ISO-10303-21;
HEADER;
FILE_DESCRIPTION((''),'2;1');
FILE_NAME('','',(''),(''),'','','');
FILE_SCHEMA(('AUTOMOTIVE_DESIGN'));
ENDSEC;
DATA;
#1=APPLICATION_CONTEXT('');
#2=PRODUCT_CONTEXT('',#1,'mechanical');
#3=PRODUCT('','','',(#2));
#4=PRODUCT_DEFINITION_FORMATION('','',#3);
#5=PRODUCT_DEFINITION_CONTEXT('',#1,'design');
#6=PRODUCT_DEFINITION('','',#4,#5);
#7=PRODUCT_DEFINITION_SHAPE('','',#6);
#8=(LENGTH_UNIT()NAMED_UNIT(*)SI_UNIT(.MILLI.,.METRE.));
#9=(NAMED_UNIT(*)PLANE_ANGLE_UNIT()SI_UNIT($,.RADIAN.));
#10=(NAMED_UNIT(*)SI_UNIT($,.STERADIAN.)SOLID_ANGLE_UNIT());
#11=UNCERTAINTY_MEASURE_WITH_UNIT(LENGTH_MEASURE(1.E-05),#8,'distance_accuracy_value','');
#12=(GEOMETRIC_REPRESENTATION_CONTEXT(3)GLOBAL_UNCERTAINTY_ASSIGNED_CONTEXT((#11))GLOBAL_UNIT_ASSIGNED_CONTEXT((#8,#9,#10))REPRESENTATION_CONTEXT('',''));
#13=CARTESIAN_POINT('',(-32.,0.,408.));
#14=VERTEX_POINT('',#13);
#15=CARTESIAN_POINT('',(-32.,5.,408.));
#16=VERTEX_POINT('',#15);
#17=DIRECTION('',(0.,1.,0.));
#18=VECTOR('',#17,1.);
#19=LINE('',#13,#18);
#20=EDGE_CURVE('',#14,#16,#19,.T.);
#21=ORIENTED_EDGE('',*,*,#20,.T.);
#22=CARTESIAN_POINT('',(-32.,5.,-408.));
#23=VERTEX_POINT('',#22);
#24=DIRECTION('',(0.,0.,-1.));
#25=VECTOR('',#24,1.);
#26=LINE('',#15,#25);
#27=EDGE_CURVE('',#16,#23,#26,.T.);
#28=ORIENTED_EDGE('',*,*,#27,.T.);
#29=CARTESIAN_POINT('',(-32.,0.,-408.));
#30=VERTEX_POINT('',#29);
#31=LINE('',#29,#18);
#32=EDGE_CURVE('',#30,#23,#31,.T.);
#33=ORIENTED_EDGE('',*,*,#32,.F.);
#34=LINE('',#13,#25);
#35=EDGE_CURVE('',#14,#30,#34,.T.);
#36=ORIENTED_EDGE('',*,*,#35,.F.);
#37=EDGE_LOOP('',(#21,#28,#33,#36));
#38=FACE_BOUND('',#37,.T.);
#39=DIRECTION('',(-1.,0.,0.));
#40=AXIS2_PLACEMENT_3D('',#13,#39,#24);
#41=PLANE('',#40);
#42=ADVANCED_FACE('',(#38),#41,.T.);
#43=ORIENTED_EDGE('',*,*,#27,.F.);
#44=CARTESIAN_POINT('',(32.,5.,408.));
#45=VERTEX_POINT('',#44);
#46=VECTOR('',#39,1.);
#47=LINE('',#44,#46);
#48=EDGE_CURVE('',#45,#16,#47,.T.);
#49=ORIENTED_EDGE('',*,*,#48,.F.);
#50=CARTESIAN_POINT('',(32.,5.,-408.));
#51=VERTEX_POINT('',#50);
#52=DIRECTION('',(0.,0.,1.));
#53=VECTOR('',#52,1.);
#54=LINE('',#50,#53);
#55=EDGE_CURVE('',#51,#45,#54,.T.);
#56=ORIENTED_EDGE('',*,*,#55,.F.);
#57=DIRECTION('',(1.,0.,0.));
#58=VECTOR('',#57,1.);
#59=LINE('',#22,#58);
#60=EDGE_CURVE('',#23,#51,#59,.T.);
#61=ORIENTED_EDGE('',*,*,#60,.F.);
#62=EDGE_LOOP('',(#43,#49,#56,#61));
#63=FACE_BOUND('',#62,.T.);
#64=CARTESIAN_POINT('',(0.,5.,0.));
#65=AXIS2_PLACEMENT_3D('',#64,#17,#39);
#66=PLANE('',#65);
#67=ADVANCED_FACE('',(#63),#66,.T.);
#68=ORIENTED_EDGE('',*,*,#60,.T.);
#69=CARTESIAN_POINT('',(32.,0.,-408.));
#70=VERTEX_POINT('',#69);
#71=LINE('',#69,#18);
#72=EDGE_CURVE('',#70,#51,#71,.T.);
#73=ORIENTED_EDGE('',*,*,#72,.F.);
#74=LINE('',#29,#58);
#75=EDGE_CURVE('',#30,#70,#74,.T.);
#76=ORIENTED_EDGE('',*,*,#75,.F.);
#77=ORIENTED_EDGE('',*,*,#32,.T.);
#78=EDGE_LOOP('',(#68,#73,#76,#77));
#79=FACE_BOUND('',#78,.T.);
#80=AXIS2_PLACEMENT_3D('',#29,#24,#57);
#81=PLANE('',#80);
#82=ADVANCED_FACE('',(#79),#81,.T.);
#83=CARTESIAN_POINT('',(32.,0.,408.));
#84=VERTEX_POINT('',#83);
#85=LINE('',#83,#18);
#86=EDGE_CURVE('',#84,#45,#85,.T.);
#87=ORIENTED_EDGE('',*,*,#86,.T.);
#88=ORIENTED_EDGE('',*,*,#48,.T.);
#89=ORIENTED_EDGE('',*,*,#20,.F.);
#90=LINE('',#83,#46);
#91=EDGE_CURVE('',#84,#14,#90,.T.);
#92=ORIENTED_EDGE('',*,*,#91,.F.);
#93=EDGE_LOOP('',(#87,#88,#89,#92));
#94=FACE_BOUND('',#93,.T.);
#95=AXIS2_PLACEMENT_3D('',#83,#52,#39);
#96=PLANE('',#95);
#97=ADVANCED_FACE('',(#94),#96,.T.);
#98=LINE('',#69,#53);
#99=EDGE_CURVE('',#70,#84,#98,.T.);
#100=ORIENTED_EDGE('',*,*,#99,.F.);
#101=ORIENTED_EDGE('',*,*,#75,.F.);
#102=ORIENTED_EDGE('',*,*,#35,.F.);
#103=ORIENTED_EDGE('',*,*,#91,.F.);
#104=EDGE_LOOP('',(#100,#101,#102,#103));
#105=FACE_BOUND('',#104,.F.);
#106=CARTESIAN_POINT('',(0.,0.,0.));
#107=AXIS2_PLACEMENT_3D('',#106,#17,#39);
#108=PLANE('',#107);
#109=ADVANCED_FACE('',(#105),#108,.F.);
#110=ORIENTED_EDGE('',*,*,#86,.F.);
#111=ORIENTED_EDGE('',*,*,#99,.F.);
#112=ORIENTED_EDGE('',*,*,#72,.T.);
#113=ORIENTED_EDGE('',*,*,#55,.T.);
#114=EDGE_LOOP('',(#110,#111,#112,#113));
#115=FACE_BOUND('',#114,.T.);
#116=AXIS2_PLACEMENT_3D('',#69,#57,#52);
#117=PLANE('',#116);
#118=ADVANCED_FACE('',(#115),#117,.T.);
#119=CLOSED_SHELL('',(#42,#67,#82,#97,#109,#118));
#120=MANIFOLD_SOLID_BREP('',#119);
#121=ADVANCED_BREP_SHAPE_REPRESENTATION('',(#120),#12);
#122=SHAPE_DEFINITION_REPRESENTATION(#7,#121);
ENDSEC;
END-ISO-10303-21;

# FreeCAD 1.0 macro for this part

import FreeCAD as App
import Part
import Sketcher
Q = App.Units.Quantity

doc = App.newDocument("Part")
params = doc.addObject("Spreadsheet::Sheet", "Params")
for row, (alias, value) in enumerate([
    ("sketch1_width", "64 mm"),
    ("sketch1_height", "816 mm"),
    ("pad1_length", "5 mm"),
], start=1):
    params.set(f"A{row}", alias)
    params.set(f"B{row}", "=" + value)
    params.setAlias(f"B{row}", alias)

body = doc.addObject("PartDesign::Body", "Body")

# Sketch on XZ plane
sketch1 = body.newObject("Sketcher::SketchObject", "Sketch")
sketch1.AttachmentSupport = (doc.getObject("XZ_Plane"), [""])
sketch1.MapMode = "FlatFace"
sketch1.addGeometry(Part.LineSegment(App.Vector(-32, 408, 0), App.Vector(32, 408, 0)), False)
sketch1.addGeometry(Part.LineSegment(App.Vector(32, 408, 0), App.Vector(32, -408, 0)), False)
sketch1.addGeometry(Part.LineSegment(App.Vector(32, -408, 0), App.Vector(-32, -408, 0)), False)
sketch1.addGeometry(Part.LineSegment(App.Vector(-32, -408, 0), App.Vector(-32, 408, 0)), False)
sketch1.addConstraint(Sketcher.Constraint("Coincident", 0, 2, 1, 1))
sketch1.addConstraint(Sketcher.Constraint("Coincident", 1, 2, 2, 1))
sketch1.addConstraint(Sketcher.Constraint("Coincident", 2, 2, 3, 1))
sketch1.addConstraint(Sketcher.Constraint("Coincident", 3, 2, 0, 1))
sketch1.addConstraint(Sketcher.Constraint("Horizontal", 0))
sketch1.addConstraint(Sketcher.Constraint("Vertical", 1))
sketch1.addConstraint(Sketcher.Constraint("Horizontal", 2))
sketch1.addConstraint(Sketcher.Constraint("Vertical", 3))
sketch1.addConstraint(Sketcher.Constraint("Symmetric", 0, 2, 2, 2, -1, 1))
sketch1.addConstraint(Sketcher.Constraint("DistanceX", 0, 1, 0, 2, Q("64 mm")))
sketch1.addConstraint(Sketcher.Constraint("DistanceY", 1, 2, 1, 1, Q("816 mm")))
sketch1.setExpression("Constraints[9]", "Params.sketch1_width")
sketch1.setExpression("Constraints[10]", "Params.sketch1_height")
pad1 = body.newObject("PartDesign::Pad", "Pad")
pad1.Profile = sketch1
pad1.setExpression("Length", "Params.pad1_length")
pad1.Reversed = True

doc.recompute()
